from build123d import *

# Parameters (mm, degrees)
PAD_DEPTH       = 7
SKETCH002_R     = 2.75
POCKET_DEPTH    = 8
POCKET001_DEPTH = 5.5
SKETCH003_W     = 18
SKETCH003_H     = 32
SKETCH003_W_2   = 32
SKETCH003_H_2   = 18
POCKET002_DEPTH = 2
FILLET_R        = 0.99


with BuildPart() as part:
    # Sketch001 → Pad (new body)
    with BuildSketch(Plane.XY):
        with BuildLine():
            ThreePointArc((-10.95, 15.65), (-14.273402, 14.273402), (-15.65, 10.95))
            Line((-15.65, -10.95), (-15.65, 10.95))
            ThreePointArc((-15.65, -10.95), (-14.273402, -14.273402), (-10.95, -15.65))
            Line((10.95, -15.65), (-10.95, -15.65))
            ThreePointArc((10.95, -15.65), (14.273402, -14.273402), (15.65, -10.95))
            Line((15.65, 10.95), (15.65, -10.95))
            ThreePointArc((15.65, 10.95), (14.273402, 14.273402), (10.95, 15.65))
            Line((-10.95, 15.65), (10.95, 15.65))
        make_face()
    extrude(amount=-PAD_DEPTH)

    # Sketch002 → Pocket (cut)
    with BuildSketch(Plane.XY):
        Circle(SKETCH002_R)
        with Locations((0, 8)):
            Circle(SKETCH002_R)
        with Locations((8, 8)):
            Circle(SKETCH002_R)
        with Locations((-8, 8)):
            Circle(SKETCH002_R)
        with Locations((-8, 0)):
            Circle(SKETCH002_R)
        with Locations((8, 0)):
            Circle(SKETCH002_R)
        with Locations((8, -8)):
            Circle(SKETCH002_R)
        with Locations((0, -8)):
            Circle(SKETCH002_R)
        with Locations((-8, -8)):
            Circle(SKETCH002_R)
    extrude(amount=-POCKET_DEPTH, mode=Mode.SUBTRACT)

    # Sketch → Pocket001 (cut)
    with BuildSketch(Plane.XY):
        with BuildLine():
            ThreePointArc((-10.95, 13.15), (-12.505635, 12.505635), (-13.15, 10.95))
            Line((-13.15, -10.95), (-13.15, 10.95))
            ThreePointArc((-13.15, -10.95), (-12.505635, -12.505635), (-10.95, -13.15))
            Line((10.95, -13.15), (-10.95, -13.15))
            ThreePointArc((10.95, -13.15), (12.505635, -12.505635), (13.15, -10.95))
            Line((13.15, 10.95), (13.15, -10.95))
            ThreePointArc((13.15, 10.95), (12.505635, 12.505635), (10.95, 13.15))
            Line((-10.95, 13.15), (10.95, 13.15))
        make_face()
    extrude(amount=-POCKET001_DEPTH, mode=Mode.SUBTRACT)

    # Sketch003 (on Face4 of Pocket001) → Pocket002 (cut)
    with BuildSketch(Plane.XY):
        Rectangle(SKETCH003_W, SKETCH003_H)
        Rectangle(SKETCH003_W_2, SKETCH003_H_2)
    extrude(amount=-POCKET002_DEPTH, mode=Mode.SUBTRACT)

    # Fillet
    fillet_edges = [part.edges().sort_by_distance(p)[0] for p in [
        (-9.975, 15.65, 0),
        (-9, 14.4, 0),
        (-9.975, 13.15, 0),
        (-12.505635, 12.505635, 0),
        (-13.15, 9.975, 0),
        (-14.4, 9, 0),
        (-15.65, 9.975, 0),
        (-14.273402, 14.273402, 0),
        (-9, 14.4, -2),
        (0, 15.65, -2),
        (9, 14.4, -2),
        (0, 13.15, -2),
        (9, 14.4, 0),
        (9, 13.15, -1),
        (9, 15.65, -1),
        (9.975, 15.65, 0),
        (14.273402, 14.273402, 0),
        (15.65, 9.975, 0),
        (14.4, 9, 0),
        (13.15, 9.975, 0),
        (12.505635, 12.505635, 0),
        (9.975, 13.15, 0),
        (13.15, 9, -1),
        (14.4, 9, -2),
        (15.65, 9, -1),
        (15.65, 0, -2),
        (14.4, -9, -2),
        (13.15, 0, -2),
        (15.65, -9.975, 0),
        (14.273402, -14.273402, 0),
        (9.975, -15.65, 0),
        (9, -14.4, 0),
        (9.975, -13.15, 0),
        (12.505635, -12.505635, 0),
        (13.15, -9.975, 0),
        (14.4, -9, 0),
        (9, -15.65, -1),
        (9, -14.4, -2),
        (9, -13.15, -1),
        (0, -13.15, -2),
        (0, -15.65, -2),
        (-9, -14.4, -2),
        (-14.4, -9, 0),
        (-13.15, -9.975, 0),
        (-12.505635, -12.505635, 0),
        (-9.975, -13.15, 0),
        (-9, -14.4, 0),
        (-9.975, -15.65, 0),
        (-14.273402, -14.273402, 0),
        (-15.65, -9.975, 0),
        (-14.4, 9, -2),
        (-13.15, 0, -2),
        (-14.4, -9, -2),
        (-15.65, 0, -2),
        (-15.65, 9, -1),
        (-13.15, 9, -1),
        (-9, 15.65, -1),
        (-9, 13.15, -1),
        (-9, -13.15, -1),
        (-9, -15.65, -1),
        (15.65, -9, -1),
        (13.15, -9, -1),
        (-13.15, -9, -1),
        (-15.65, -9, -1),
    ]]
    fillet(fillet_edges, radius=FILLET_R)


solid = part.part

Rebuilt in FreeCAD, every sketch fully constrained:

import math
import FreeCAD as App
import Part
import Sketcher
from FreeCAD import Vector
Q = App.Units.Quantity


def edges_at(feature, points):
    """Names of the edges that pass closest to the given points."""
    edges = feature.Shape.Edges
    near = lambda p: min(range(len(edges)), key=lambda i: edges[i].distToShape(Part.Vertex(*p))[0])
    return sorted({f"Edge{near(p) + 1}" for p in points})


def add_polygon(sketch, points):
    """Adds a closed chain of lines whose ends are joined by coincident constraints."""
    first, n = sketch.GeometryCount, len(points)
    for a, b in zip(points, points[1:] + points[:1]):
        sketch.addGeometry(Part.LineSegment(App.Vector(*a, 0), App.Vector(*b, 0)), False)
    for i in range(n):
        sketch.addConstraint(Sketcher.Constraint("Coincident", first + i, 2, first + (i + 1) % n, 1))

doc = App.newDocument("Part")
params = doc.addObject("Spreadsheet::Sheet", "Params")
for row, (alias, value) in enumerate([
    ("sketch1_radius", "4.7 mm"),
    ("sketch1_width", "21.9 mm"),
    ("pad1_length", "7 mm"),
    ("sketch2_diameter", "5.5 mm"),
    ("pocket1_length", "8 mm"),
    ("sketch3_radius", "2.2 mm"),
    ("sketch3_width", "21.9 mm"),
    ("pocket2_length", "5.5 mm"),
    ("sketch4_width", "18 mm"),
    ("sketch4_width2", "7 mm"),
    ("pocket3_length", "2 mm"),
    ("fillet_radius", "0.99 mm"),
], start=1):
    params.set(f"A{row}", alias)
    params.set(f"B{row}", "=" + value)
    params.setAlias(f"B{row}", alias)

body = doc.addObject("PartDesign::Body", "Body")

# Sketch on XY plane
sketch1 = body.newObject("Sketcher::SketchObject", "Sketch")
sketch1.AttachmentSupport = (doc.getObject("XY_Plane"), [""])
sketch1.MapMode = "FlatFace"
sketch1.addGeometry([
    Part.ArcOfCircle(Part.Circle(Vector(-10.95, 10.95, 0), Vector(0, 0, 1), 4.7), math.radians(89.999995), math.radians(180.000005)),  # 0
    Part.LineSegment(Vector(-15.65, 10.95, 0), Vector(-15.65, -10.95, 0)),  # 1
    Part.ArcOfCircle(Part.Circle(Vector(-10.95, -10.95, 0), Vector(0, 0, 1), 4.7), math.radians(179.999995), math.radians(270.000005)),  # 2
    Part.LineSegment(Vector(-10.95, -15.65, 0), Vector(10.95, -15.65, 0)),  # 3
    Part.ArcOfCircle(Part.Circle(Vector(10.95, -10.95, 0), Vector(0, 0, 1), 4.7), math.radians(-90.000005), math.radians(0.000005)),  # 4
    Part.LineSegment(Vector(15.65, -10.95, 0), Vector(15.65, 10.95, 0)),  # 5
    Part.ArcOfCircle(Part.Circle(Vector(10.95, 10.95, 0), Vector(0, 0, 1), 4.7), math.radians(-0.000005), math.radians(90.000005)),  # 6
    Part.LineSegment(Vector(10.95, 15.65, 0), Vector(-10.95, 15.65, 0)),  # 7
], False)
sketch1.addConstraint([
    Sketcher.Constraint("Tangent", 0, 2, 1, 1),
    Sketcher.Constraint("Tangent", 1, 2, 2, 1),
    Sketcher.Constraint("Tangent", 2, 2, 3, 1),
    Sketcher.Constraint("Tangent", 3, 2, 4, 1),
    Sketcher.Constraint("Tangent", 4, 2, 5, 1),
    Sketcher.Constraint("Tangent", 5, 2, 6, 1),
    Sketcher.Constraint("Tangent", 6, 2, 7, 1),
    Sketcher.Constraint("Tangent", 7, 2, 0, 1),
    Sketcher.Constraint("Vertical", 1),
    Sketcher.Constraint("Horizontal", 3),
    Sketcher.Constraint("Vertical", 5),
    Sketcher.Constraint("Horizontal", 7),
    Sketcher.Constraint("Equal", 0, 2),
    Sketcher.Constraint("Equal", 2, 4),
    Sketcher.Constraint("Equal", 4, 6),
    Sketcher.Constraint("Symmetric", 0, 3, 4, 3, -1, 1),
    Sketcher.Constraint("Equal", 7, 1),
    Sketcher.Constraint("Radius", 0, Q("4.7 mm")),
    Sketcher.Constraint("DistanceX", 3, 1, 3, 2, Q("21.9 mm")),
])
sketch1.setExpression("Constraints[17]", "Params.sketch1_radius")
sketch1.setExpression("Constraints[18]", "Params.sketch1_width")
pad1 = body.newObject("PartDesign::Pad", "Pad")
pad1.Profile = sketch1
pad1.setExpression("Length", "Params.pad1_length")
pad1.Reversed = True

# Sketch on XY plane
sketch2 = body.newObject("Sketcher::SketchObject", "Sketch001")
sketch2.AttachmentSupport = (doc.getObject("XY_Plane"), [""])
sketch2.MapMode = "FlatFace"
sketch2.addGeometry([
    Part.Circle(Vector(0, 0, 0), Vector(0, 0, 1), 2.75),  # 0
    Part.Circle(Vector(0, 8, 0), Vector(0, 0, 1), 2.75),  # 1
    Part.Circle(Vector(8, 8, 0), Vector(0, 0, 1), 2.75),  # 2
    Part.Circle(Vector(-8, 8, 0), Vector(0, 0, 1), 2.75),  # 3
    Part.Circle(Vector(-8, 0, 0), Vector(0, 0, 1), 2.75),  # 4
    Part.Circle(Vector(8, 0, 0), Vector(0, 0, 1), 2.75),  # 5
    Part.Circle(Vector(8, -8, 0), Vector(0, 0, 1), 2.75),  # 6
    Part.Circle(Vector(0, -8, 0), Vector(0, 0, 1), 2.75),  # 7
    Part.Circle(Vector(-8, -8, 0), Vector(0, 0, 1), 2.75),  # 8
], False)
sketch2.addConstraint([
    Sketcher.Constraint("Coincident", 0, 3, -1, 1),
    Sketcher.Constraint("Equal", 0, 1),
    Sketcher.Constraint("Equal", 1, 2),
    Sketcher.Constraint("Equal", 2, 3),
    Sketcher.Constraint("Equal", 3, 4),
    Sketcher.Constraint("Equal", 4, 5),
    Sketcher.Constraint("Equal", 5, 6),
    Sketcher.Constraint("Equal", 6, 7),
    Sketcher.Constraint("Equal", 7, 8),
    Sketcher.Constraint("Symmetric", 4, 3, 5, 3, -1, 1),
    Sketcher.Constraint("Symmetric", 3, 3, 6, 3, -1, 1),
    Sketcher.Constraint("Symmetric", 1, 3, 7, 3, -1, 1),
    Sketcher.Constraint("Symmetric", 2, 3, 8, 3, -1, 1),
    Sketcher.Constraint("Symmetric", 2, 3, 3, 3, -2),
    Sketcher.Constraint("PointOnObject", 1, 3, -2),
    Sketcher.Constraint("PointOnObject", 4, 3, -1),
    Sketcher.Constraint("Horizontal", 1, 3, 2, 3),
    Sketcher.Constraint("Vertical", 3, 3, 4, 3),
    Sketcher.Constraint("Diameter", 0, Q("5.5 mm")),
    Sketcher.Constraint("DistanceY", -1, 1, 1, 3, Q("8 mm")),
    Sketcher.Constraint("DistanceX", -1, 1, 2, 3, Q("8 mm")),
])
sketch2.setExpression("Constraints[18]", "Params.sketch2_diameter")
pocket1 = body.newObject("PartDesign::Pocket", "Pocket")
pocket1.Profile = sketch2
pocket1.setExpression("Length", "Params.pocket1_length")

# Sketch on XY plane
sketch3 = body.newObject("Sketcher::SketchObject", "Sketch002")
sketch3.AttachmentSupport = (doc.getObject("XY_Plane"), [""])
sketch3.MapMode = "FlatFace"
sketch3.addGeometry([
    Part.ArcOfCircle(Part.Circle(Vector(-10.95, 10.95, 0), Vector(0, 0, 1), 2.2), math.radians(89.999993), math.radians(180.000007)),  # 0
    Part.LineSegment(Vector(-13.15, 10.95, 0), Vector(-13.15, -10.95, 0)),  # 1
    Part.ArcOfCircle(Part.Circle(Vector(-10.95, -10.95, 0), Vector(0, 0, 1), 2.2), math.radians(179.999993), math.radians(270.000007)),  # 2
    Part.LineSegment(Vector(-10.95, -13.15, 0), Vector(10.95, -13.15, 0)),  # 3
    Part.ArcOfCircle(Part.Circle(Vector(10.95, -10.95, 0), Vector(0, 0, 1), 2.2), math.radians(-90.000007), math.radians(0.000007)),  # 4
    Part.LineSegment(Vector(13.15, -10.95, 0), Vector(13.15, 10.95, 0)),  # 5
    Part.ArcOfCircle(Part.Circle(Vector(10.95, 10.95, 0), Vector(0, 0, 1), 2.2), math.radians(-0.000007), math.radians(90.000007)),  # 6
    Part.LineSegment(Vector(10.95, 13.15, 0), Vector(-10.95, 13.15, 0)),  # 7
], False)
sketch3.addConstraint([
    Sketcher.Constraint("Tangent", 0, 2, 1, 1),
    Sketcher.Constraint("Tangent", 1, 2, 2, 1),
    Sketcher.Constraint("Tangent", 2, 2, 3, 1),
    Sketcher.Constraint("Tangent", 3, 2, 4, 1),
    Sketcher.Constraint("Tangent", 4, 2, 5, 1),
    Sketcher.Constraint("Tangent", 5, 2, 6, 1),
    Sketcher.Constraint("Tangent", 6, 2, 7, 1),
    Sketcher.Constraint("Tangent", 7, 2, 0, 1),
    Sketcher.Constraint("Vertical", 1),
    Sketcher.Constraint("Horizontal", 3),
    Sketcher.Constraint("Vertical", 5),
    Sketcher.Constraint("Horizontal", 7),
    Sketcher.Constraint("Equal", 0, 2),
    Sketcher.Constraint("Equal", 2, 4),
    Sketcher.Constraint("Equal", 4, 6),
    Sketcher.Constraint("Symmetric", 0, 3, 4, 3, -1, 1),
    Sketcher.Constraint("Equal", 7, 1),
    Sketcher.Constraint("Radius", 0, Q("2.2 mm")),
    Sketcher.Constraint("DistanceX", 3, 1, 3, 2, Q("21.9 mm")),
])
sketch3.setExpression("Constraints[17]", "Params.sketch3_radius")
sketch3.setExpression("Constraints[18]", "Params.sketch3_width")
pocket2 = body.newObject("PartDesign::Pocket", "Pocket001")
pocket2.Profile = sketch3
pocket2.setExpression("Length", "Params.pocket2_length")

# Sketch on XY plane
sketch4 = body.newObject("Sketcher::SketchObject", "Sketch003")
sketch4.AttachmentSupport = (doc.getObject("XY_Plane"), [""])
sketch4.MapMode = "FlatFace"
add_polygon(sketch4, [(-9, -9), (-9, -16), (9, -16), (9, -9), (16, -9), (16, 9), (9, 9), (9, 16), (-9, 16), (-9, 9), (-16, 9), (-16, -9)])  # lines 0-11
sketch4.addConstraint([
    Sketcher.Constraint("Vertical", 0),
    Sketcher.Constraint("Horizontal", 1),
    Sketcher.Constraint("Vertical", 2),
    Sketcher.Constraint("Horizontal", 3),
    Sketcher.Constraint("Vertical", 4),
    Sketcher.Constraint("Horizontal", 5),
    Sketcher.Constraint("Vertical", 6),
    Sketcher.Constraint("Horizontal", 7),
    Sketcher.Constraint("Vertical", 8),
    Sketcher.Constraint("Horizontal", 9),
    Sketcher.Constraint("Vertical", 10),
    Sketcher.Constraint("Horizontal", 11),
    Sketcher.Constraint("Symmetric", 0, 2, 6, 2, -1, 1),
    Sketcher.Constraint("Symmetric", 2, 2, 8, 2, -1, 1),
    Sketcher.Constraint("Symmetric", 4, 2, 10, 2, -1, 1),
    Sketcher.Constraint("Symmetric", 5, 2, 8, 2, -2),
    Sketcher.Constraint("Equal", 11, 0),
    Sketcher.Constraint("Equal", 7, 4),
    Sketcher.Constraint("DistanceX", 1, 1, 1, 2, Q("18 mm")),
    Sketcher.Constraint("DistanceX", 3, 1, 3, 2, Q("7 mm")),
])
sketch4.setExpression("Constraints[30]", "Params.sketch4_width")
sketch4.setExpression("Constraints[31]", "Params.sketch4_width2")
pocket3 = body.newObject("PartDesign::Pocket", "Pocket002")
pocket3.Profile = sketch4
pocket3.setExpression("Length", "Params.pocket3_length")
doc.recompute()

fillet = body.newObject("PartDesign::Fillet", "Fillet")
fillet.Base = (pocket3, edges_at(pocket3, [
    (-9.975, 15.65, 0),
    (-9, 14.4, 0),
    (-9.975, 13.15, 0),
    (-12.506, 12.506, 0),
    (-13.15, 9.975, 0),
    (-14.4, 9, 0),
    (-15.65, 9.975, 0),
    (-14.273, 14.273, 0),
    (-9, 14.4, -2),
    (0, 15.65, -2),
    (9, 14.4, -2),
    (0, 13.15, -2),
    (9, 14.4, 0),
    (9, 13.15, -1),
    (9, 15.65, -1),
    (9.975, 15.65, 0),
    (14.273, 14.273, 0),
    (15.65, 9.975, 0),
    (14.4, 9, 0),
    (13.15, 9.975, 0),
    (12.506, 12.506, 0),
    (9.975, 13.15, 0),
    (13.15, 9, -1),
    (14.4, 9, -2),
    (15.65, 9, -1),
    (15.65, 0, -2),
    (14.4, -9, -2),
    (13.15, 0, -2),
    (15.65, -9.975, 0),
    (14.273, -14.273, 0),
    (9.975, -15.65, 0),
    (9, -14.4, 0),
    (9.975, -13.15, 0),
    (12.506, -12.506, 0),
    (13.15, -9.975, 0),
    (14.4, -9, 0),
    (9, -15.65, -1),
    (9, -14.4, -2),
    (9, -13.15, -1),
    (0, -13.15, -2),
    (0, -15.65, -2),
    (-9, -14.4, -2),
    (-14.4, -9, 0),
    (-13.15, -9.975, 0),
    (-12.506, -12.506, 0),
    (-9.975, -13.15, 0),
    (-9, -14.4, 0),
    (-9.975, -15.65, 0),
    (-14.273, -14.273, 0),
    (-15.65, -9.975, 0),
    (-14.4, 9, -2),
    (-13.15, 0, -2),
    (-14.4, -9, -2),
    (-15.65, 0, -2),
    (-15.65, 9, -1),
    (-13.15, 9, -1),
    (-9, 15.65, -1),
    (-9, 13.15, -1),
    (-9, -13.15, -1),
    (-9, -15.65, -1),
    (15.65, -9, -1),
    (13.15, -9, -1),
    (-13.15, -9, -1),
    (-15.65, -9, -1),
]))
fillet.setExpression("Radius", "Params.fillet_radius")

doc.recompute()
